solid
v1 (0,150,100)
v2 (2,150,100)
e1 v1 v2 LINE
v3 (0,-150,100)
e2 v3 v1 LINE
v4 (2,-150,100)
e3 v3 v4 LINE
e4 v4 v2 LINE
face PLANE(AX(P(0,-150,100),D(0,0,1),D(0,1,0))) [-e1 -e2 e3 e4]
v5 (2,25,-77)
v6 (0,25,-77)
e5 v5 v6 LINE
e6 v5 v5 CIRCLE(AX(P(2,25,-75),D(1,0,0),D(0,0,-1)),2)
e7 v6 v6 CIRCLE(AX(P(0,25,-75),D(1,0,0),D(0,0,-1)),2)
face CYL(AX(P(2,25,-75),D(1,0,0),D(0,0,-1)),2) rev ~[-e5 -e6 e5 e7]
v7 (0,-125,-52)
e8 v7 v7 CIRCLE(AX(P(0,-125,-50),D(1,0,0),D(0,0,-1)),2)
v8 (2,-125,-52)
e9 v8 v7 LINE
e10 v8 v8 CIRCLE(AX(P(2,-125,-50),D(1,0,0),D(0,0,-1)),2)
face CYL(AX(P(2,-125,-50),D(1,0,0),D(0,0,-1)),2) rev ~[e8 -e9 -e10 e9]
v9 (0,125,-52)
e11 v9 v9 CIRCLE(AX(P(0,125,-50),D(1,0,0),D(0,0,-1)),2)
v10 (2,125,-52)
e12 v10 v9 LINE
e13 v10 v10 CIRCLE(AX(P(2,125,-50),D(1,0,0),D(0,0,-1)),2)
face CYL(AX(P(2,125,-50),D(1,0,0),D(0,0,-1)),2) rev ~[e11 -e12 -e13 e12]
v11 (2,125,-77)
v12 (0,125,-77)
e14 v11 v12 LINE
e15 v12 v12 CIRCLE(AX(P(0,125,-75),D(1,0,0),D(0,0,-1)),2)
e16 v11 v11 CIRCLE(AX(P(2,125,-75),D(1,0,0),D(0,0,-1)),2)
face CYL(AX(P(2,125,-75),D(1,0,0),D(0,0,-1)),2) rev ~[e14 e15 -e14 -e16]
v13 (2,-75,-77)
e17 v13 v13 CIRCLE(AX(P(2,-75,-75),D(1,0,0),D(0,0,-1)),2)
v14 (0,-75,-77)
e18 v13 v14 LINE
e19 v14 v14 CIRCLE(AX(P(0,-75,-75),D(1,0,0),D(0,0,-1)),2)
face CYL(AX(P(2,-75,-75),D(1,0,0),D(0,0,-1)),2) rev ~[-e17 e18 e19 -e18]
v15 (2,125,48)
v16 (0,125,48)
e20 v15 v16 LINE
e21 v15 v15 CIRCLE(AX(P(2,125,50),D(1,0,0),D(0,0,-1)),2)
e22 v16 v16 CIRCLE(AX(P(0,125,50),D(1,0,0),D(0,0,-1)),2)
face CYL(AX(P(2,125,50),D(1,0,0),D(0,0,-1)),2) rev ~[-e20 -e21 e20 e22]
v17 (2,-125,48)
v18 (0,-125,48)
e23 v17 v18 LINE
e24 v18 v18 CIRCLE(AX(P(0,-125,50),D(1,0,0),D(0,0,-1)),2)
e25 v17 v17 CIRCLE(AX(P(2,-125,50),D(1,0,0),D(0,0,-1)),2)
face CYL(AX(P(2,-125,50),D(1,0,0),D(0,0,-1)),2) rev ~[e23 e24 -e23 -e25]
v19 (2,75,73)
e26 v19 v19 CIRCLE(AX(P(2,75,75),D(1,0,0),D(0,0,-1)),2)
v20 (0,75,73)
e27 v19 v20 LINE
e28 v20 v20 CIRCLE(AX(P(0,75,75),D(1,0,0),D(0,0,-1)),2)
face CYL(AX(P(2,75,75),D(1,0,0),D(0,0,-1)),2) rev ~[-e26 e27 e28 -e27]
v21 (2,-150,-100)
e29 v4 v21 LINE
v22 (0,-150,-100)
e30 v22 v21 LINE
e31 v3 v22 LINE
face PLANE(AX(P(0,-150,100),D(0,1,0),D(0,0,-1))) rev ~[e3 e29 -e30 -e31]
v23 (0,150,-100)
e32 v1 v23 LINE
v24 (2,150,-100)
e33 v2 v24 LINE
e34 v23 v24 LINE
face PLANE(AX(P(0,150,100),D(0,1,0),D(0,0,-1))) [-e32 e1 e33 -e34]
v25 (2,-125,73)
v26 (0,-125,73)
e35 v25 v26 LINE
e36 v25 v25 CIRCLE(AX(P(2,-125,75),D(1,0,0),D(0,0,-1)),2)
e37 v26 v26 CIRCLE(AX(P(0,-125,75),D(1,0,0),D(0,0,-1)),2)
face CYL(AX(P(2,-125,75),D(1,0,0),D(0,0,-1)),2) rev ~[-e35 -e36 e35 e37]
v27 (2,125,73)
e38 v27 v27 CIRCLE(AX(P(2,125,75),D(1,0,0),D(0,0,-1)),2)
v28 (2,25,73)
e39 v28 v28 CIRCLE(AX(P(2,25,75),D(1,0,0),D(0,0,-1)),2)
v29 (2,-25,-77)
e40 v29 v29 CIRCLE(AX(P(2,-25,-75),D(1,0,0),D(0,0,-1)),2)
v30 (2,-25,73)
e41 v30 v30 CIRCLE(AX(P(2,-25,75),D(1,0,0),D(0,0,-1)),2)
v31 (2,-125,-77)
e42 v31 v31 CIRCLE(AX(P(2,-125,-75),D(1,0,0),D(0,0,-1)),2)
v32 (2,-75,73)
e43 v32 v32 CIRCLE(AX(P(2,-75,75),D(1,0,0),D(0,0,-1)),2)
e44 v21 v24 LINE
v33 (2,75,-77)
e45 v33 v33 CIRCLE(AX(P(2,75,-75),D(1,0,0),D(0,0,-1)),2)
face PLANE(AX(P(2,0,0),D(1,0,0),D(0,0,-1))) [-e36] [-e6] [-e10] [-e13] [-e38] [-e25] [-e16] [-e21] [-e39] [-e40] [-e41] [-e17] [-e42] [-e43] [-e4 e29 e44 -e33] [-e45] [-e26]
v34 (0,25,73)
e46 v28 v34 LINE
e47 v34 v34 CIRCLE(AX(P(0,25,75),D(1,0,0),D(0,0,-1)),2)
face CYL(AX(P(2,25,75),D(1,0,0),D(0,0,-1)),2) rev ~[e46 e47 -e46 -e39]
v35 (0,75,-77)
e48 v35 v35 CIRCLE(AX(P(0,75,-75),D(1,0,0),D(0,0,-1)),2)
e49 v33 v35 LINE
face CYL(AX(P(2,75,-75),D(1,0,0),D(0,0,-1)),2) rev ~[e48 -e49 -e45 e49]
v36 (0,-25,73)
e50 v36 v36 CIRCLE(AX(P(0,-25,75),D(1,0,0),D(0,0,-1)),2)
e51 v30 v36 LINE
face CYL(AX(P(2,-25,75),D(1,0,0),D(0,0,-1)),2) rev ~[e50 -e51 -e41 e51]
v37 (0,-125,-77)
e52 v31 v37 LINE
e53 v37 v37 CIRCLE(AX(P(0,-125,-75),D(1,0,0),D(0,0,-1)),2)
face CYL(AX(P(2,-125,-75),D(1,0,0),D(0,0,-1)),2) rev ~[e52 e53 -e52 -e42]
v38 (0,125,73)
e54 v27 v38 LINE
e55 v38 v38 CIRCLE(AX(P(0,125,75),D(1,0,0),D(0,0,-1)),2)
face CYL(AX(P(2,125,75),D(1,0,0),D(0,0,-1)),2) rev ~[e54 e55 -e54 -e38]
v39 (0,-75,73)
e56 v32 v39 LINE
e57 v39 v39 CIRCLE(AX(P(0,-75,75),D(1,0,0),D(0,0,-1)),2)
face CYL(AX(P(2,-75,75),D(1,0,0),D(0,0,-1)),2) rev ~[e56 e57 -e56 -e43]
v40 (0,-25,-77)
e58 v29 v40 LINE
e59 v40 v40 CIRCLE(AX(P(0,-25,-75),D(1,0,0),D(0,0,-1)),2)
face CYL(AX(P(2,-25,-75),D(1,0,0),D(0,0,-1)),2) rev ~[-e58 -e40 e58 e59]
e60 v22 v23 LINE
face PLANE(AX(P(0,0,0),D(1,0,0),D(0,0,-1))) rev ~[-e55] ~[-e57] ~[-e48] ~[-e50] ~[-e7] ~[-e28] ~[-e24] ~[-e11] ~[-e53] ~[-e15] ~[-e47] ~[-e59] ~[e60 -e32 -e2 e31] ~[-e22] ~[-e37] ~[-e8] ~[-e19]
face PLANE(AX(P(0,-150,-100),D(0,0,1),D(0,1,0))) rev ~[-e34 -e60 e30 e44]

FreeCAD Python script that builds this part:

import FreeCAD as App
import Part
import Sketcher

V = App.Vector

doc = App.newDocument("Part")
body = doc.addObject("PartDesign::Body", "Body")

sketch1 = body.newObject("Sketcher::SketchObject", "Sketch")
sketch1.AttachmentSupport = (doc.getObject("YZ_Plane"), [""])
sketch1.MapMode = "FlatFace"
sketch1.addGeometry([
    Part.LineSegment(V(150, 100, 0), V(-150, 100, 0)),
    Part.LineSegment(V(-150, 100, 0), V(-150, -100, 0)),
    Part.LineSegment(V(-150, -100, 0), V(150, -100, 0)),
    Part.LineSegment(V(150, -100, 0), V(150, 100, 0)),
], False)
sketch1.addConstraint([
    Sketcher.Constraint("Coincident", 0, 2, 1, 1),
    Sketcher.Constraint("Coincident", 1, 2, 2, 1),
    Sketcher.Constraint("Coincident", 2, 2, 3, 1),
    Sketcher.Constraint("Coincident", 3, 2, 0, 1),
    Sketcher.Constraint("Horizontal", 0),
    Sketcher.Constraint("Vertical", 1),
    Sketcher.Constraint("Horizontal", 2),
    Sketcher.Constraint("Vertical", 3),
    Sketcher.Constraint("Symmetric", 0, 2, 2, 2, -1, 1),
    Sketcher.Constraint("DistanceX", 0, 2, 0, 1, 300.0),
    Sketcher.Constraint("DistanceY", 1, 2, 1, 1, 200.0),
])
pad1 = body.newObject("PartDesign::Pad", "Pad")
pad1.Profile = sketch1
pad1.Length = 2

sketch2 = body.newObject("Sketcher::SketchObject", "Sketch001")
sketch2.AttachmentSupport = (doc.getObject("YZ_Plane"), [""])
sketch2.MapMode = "FlatFace"
sketch2.AttachmentOffset = App.Placement(V(0, 0, 2), App.Rotation())
sketch2.addGeometry([
    Part.Circle(V(125, 75, 0), V(0, 0, 1), 2),
    Part.Circle(V(125, -75, 0), V(0, 0, 1), 2),
    Part.Circle(V(-125, -75, 0), V(0, 0, 1), 2),
    Part.Circle(V(-125, 75, 0), V(0, 0, 1), 2),
    Part.Circle(V(75, 75, 0), V(0, 0, 1), 2),
    Part.Circle(V(25, 75, 0), V(0, 0, 1), 2),
    Part.Circle(V(25, -75, 0), V(0, 0, 1), 2),
    Part.Circle(V(75, -75, 0), V(0, 0, 1), 2),
    Part.Circle(V(-25, 75, 0), V(0, 0, 1), 2),
    Part.Circle(V(-25, -75, 0), V(0, 0, 1), 2),
    Part.Circle(V(-75, -75, 0), V(0, 0, 1), 2),
    Part.Circle(V(-75, 75, 0), V(0, 0, 1), 2),
    Part.Circle(V(125, 50, 0), V(0, 0, 1), 2),
    Part.Circle(V(125, -50, 0), V(0, 0, 1), 2),
    Part.Circle(V(-125, -50, 0), V(0, 0, 1), 2),
    Part.Circle(V(-125, 50, 0), V(0, 0, 1), 2),
], False)
sketch2.addConstraint([
    Sketcher.Constraint("Equal", 0, 1),
    Sketcher.Constraint("Equal", 1, 2),
    Sketcher.Constraint("Equal", 2, 3),
    Sketcher.Constraint("Equal", 3, 4),
    Sketcher.Constraint("Equal", 4, 5),
    Sketcher.Constraint("Equal", 5, 6),
    Sketcher.Constraint("Equal", 6, 7),
    Sketcher.Constraint("Equal", 7, 8),
    Sketcher.Constraint("Equal", 8, 9),
    Sketcher.Constraint("Equal", 9, 10),
    Sketcher.Constraint("Equal", 10, 11),
    Sketcher.Constraint("Equal", 11, 12),
    Sketcher.Constraint("Equal", 12, 13),
    Sketcher.Constraint("Equal", 13, 14),
    Sketcher.Constraint("Equal", 14, 15),
    Sketcher.Constraint("Symmetric", 0, 3, 2, 3, -1, 1),
    Sketcher.Constraint("Symmetric", 1, 3, 3, 3, -1, 1),
    Sketcher.Constraint("Symmetric", 6, 3, 8, 3, -1, 1),
    Sketcher.Constraint("Symmetric", 5, 3, 9, 3, -1, 1),
    Sketcher.Constraint("Symmetric", 4, 3, 10, 3, -1, 1),
    Sketcher.Constraint("Symmetric", 7, 3, 11, 3, -1, 1),
    Sketcher.Constraint("Symmetric", 12, 3, 14, 3, -1, 1),
    Sketcher.Constraint("Symmetric", 13, 3, 15, 3, -1, 1),
    Sketcher.Constraint("Symmetric", 1, 3, 2, 3, -2),
    Sketcher.Constraint("Symmetric", 5, 3, 8, 3, -2),
    Sketcher.Constraint("Symmetric", 7, 3, 10, 3, -2),
    Sketcher.Constraint("Symmetric", 13, 3, 14, 3, -2),
    Sketcher.Constraint("Horizontal", 3, 3, 4, 3),
    Sketcher.Constraint("Horizontal", 4, 3, 5, 3),
    Sketcher.Constraint("Vertical", 1, 3, 12, 3),
    Sketcher.Constraint("Diameter", 0, 4.0),
    Sketcher.Constraint("DistanceX", -1, 1, 0, 3, 125.0),
    Sketcher.Constraint("DistanceY", -1, 1, 0, 3, 75.0),
    Sketcher.Constraint("DistanceX", -1, 1, 4, 3, 75.0),
    Sketcher.Constraint("DistanceX", -1, 1, 5, 3, 25.0),
    Sketcher.Constraint("DistanceY", -1, 1, 12, 3, 50.0),
])
pocket1 = body.newObject("PartDesign::Pocket", "Pocket")
pocket1.Profile = sketch2
pocket1.Length = 2

doc.recompute()
